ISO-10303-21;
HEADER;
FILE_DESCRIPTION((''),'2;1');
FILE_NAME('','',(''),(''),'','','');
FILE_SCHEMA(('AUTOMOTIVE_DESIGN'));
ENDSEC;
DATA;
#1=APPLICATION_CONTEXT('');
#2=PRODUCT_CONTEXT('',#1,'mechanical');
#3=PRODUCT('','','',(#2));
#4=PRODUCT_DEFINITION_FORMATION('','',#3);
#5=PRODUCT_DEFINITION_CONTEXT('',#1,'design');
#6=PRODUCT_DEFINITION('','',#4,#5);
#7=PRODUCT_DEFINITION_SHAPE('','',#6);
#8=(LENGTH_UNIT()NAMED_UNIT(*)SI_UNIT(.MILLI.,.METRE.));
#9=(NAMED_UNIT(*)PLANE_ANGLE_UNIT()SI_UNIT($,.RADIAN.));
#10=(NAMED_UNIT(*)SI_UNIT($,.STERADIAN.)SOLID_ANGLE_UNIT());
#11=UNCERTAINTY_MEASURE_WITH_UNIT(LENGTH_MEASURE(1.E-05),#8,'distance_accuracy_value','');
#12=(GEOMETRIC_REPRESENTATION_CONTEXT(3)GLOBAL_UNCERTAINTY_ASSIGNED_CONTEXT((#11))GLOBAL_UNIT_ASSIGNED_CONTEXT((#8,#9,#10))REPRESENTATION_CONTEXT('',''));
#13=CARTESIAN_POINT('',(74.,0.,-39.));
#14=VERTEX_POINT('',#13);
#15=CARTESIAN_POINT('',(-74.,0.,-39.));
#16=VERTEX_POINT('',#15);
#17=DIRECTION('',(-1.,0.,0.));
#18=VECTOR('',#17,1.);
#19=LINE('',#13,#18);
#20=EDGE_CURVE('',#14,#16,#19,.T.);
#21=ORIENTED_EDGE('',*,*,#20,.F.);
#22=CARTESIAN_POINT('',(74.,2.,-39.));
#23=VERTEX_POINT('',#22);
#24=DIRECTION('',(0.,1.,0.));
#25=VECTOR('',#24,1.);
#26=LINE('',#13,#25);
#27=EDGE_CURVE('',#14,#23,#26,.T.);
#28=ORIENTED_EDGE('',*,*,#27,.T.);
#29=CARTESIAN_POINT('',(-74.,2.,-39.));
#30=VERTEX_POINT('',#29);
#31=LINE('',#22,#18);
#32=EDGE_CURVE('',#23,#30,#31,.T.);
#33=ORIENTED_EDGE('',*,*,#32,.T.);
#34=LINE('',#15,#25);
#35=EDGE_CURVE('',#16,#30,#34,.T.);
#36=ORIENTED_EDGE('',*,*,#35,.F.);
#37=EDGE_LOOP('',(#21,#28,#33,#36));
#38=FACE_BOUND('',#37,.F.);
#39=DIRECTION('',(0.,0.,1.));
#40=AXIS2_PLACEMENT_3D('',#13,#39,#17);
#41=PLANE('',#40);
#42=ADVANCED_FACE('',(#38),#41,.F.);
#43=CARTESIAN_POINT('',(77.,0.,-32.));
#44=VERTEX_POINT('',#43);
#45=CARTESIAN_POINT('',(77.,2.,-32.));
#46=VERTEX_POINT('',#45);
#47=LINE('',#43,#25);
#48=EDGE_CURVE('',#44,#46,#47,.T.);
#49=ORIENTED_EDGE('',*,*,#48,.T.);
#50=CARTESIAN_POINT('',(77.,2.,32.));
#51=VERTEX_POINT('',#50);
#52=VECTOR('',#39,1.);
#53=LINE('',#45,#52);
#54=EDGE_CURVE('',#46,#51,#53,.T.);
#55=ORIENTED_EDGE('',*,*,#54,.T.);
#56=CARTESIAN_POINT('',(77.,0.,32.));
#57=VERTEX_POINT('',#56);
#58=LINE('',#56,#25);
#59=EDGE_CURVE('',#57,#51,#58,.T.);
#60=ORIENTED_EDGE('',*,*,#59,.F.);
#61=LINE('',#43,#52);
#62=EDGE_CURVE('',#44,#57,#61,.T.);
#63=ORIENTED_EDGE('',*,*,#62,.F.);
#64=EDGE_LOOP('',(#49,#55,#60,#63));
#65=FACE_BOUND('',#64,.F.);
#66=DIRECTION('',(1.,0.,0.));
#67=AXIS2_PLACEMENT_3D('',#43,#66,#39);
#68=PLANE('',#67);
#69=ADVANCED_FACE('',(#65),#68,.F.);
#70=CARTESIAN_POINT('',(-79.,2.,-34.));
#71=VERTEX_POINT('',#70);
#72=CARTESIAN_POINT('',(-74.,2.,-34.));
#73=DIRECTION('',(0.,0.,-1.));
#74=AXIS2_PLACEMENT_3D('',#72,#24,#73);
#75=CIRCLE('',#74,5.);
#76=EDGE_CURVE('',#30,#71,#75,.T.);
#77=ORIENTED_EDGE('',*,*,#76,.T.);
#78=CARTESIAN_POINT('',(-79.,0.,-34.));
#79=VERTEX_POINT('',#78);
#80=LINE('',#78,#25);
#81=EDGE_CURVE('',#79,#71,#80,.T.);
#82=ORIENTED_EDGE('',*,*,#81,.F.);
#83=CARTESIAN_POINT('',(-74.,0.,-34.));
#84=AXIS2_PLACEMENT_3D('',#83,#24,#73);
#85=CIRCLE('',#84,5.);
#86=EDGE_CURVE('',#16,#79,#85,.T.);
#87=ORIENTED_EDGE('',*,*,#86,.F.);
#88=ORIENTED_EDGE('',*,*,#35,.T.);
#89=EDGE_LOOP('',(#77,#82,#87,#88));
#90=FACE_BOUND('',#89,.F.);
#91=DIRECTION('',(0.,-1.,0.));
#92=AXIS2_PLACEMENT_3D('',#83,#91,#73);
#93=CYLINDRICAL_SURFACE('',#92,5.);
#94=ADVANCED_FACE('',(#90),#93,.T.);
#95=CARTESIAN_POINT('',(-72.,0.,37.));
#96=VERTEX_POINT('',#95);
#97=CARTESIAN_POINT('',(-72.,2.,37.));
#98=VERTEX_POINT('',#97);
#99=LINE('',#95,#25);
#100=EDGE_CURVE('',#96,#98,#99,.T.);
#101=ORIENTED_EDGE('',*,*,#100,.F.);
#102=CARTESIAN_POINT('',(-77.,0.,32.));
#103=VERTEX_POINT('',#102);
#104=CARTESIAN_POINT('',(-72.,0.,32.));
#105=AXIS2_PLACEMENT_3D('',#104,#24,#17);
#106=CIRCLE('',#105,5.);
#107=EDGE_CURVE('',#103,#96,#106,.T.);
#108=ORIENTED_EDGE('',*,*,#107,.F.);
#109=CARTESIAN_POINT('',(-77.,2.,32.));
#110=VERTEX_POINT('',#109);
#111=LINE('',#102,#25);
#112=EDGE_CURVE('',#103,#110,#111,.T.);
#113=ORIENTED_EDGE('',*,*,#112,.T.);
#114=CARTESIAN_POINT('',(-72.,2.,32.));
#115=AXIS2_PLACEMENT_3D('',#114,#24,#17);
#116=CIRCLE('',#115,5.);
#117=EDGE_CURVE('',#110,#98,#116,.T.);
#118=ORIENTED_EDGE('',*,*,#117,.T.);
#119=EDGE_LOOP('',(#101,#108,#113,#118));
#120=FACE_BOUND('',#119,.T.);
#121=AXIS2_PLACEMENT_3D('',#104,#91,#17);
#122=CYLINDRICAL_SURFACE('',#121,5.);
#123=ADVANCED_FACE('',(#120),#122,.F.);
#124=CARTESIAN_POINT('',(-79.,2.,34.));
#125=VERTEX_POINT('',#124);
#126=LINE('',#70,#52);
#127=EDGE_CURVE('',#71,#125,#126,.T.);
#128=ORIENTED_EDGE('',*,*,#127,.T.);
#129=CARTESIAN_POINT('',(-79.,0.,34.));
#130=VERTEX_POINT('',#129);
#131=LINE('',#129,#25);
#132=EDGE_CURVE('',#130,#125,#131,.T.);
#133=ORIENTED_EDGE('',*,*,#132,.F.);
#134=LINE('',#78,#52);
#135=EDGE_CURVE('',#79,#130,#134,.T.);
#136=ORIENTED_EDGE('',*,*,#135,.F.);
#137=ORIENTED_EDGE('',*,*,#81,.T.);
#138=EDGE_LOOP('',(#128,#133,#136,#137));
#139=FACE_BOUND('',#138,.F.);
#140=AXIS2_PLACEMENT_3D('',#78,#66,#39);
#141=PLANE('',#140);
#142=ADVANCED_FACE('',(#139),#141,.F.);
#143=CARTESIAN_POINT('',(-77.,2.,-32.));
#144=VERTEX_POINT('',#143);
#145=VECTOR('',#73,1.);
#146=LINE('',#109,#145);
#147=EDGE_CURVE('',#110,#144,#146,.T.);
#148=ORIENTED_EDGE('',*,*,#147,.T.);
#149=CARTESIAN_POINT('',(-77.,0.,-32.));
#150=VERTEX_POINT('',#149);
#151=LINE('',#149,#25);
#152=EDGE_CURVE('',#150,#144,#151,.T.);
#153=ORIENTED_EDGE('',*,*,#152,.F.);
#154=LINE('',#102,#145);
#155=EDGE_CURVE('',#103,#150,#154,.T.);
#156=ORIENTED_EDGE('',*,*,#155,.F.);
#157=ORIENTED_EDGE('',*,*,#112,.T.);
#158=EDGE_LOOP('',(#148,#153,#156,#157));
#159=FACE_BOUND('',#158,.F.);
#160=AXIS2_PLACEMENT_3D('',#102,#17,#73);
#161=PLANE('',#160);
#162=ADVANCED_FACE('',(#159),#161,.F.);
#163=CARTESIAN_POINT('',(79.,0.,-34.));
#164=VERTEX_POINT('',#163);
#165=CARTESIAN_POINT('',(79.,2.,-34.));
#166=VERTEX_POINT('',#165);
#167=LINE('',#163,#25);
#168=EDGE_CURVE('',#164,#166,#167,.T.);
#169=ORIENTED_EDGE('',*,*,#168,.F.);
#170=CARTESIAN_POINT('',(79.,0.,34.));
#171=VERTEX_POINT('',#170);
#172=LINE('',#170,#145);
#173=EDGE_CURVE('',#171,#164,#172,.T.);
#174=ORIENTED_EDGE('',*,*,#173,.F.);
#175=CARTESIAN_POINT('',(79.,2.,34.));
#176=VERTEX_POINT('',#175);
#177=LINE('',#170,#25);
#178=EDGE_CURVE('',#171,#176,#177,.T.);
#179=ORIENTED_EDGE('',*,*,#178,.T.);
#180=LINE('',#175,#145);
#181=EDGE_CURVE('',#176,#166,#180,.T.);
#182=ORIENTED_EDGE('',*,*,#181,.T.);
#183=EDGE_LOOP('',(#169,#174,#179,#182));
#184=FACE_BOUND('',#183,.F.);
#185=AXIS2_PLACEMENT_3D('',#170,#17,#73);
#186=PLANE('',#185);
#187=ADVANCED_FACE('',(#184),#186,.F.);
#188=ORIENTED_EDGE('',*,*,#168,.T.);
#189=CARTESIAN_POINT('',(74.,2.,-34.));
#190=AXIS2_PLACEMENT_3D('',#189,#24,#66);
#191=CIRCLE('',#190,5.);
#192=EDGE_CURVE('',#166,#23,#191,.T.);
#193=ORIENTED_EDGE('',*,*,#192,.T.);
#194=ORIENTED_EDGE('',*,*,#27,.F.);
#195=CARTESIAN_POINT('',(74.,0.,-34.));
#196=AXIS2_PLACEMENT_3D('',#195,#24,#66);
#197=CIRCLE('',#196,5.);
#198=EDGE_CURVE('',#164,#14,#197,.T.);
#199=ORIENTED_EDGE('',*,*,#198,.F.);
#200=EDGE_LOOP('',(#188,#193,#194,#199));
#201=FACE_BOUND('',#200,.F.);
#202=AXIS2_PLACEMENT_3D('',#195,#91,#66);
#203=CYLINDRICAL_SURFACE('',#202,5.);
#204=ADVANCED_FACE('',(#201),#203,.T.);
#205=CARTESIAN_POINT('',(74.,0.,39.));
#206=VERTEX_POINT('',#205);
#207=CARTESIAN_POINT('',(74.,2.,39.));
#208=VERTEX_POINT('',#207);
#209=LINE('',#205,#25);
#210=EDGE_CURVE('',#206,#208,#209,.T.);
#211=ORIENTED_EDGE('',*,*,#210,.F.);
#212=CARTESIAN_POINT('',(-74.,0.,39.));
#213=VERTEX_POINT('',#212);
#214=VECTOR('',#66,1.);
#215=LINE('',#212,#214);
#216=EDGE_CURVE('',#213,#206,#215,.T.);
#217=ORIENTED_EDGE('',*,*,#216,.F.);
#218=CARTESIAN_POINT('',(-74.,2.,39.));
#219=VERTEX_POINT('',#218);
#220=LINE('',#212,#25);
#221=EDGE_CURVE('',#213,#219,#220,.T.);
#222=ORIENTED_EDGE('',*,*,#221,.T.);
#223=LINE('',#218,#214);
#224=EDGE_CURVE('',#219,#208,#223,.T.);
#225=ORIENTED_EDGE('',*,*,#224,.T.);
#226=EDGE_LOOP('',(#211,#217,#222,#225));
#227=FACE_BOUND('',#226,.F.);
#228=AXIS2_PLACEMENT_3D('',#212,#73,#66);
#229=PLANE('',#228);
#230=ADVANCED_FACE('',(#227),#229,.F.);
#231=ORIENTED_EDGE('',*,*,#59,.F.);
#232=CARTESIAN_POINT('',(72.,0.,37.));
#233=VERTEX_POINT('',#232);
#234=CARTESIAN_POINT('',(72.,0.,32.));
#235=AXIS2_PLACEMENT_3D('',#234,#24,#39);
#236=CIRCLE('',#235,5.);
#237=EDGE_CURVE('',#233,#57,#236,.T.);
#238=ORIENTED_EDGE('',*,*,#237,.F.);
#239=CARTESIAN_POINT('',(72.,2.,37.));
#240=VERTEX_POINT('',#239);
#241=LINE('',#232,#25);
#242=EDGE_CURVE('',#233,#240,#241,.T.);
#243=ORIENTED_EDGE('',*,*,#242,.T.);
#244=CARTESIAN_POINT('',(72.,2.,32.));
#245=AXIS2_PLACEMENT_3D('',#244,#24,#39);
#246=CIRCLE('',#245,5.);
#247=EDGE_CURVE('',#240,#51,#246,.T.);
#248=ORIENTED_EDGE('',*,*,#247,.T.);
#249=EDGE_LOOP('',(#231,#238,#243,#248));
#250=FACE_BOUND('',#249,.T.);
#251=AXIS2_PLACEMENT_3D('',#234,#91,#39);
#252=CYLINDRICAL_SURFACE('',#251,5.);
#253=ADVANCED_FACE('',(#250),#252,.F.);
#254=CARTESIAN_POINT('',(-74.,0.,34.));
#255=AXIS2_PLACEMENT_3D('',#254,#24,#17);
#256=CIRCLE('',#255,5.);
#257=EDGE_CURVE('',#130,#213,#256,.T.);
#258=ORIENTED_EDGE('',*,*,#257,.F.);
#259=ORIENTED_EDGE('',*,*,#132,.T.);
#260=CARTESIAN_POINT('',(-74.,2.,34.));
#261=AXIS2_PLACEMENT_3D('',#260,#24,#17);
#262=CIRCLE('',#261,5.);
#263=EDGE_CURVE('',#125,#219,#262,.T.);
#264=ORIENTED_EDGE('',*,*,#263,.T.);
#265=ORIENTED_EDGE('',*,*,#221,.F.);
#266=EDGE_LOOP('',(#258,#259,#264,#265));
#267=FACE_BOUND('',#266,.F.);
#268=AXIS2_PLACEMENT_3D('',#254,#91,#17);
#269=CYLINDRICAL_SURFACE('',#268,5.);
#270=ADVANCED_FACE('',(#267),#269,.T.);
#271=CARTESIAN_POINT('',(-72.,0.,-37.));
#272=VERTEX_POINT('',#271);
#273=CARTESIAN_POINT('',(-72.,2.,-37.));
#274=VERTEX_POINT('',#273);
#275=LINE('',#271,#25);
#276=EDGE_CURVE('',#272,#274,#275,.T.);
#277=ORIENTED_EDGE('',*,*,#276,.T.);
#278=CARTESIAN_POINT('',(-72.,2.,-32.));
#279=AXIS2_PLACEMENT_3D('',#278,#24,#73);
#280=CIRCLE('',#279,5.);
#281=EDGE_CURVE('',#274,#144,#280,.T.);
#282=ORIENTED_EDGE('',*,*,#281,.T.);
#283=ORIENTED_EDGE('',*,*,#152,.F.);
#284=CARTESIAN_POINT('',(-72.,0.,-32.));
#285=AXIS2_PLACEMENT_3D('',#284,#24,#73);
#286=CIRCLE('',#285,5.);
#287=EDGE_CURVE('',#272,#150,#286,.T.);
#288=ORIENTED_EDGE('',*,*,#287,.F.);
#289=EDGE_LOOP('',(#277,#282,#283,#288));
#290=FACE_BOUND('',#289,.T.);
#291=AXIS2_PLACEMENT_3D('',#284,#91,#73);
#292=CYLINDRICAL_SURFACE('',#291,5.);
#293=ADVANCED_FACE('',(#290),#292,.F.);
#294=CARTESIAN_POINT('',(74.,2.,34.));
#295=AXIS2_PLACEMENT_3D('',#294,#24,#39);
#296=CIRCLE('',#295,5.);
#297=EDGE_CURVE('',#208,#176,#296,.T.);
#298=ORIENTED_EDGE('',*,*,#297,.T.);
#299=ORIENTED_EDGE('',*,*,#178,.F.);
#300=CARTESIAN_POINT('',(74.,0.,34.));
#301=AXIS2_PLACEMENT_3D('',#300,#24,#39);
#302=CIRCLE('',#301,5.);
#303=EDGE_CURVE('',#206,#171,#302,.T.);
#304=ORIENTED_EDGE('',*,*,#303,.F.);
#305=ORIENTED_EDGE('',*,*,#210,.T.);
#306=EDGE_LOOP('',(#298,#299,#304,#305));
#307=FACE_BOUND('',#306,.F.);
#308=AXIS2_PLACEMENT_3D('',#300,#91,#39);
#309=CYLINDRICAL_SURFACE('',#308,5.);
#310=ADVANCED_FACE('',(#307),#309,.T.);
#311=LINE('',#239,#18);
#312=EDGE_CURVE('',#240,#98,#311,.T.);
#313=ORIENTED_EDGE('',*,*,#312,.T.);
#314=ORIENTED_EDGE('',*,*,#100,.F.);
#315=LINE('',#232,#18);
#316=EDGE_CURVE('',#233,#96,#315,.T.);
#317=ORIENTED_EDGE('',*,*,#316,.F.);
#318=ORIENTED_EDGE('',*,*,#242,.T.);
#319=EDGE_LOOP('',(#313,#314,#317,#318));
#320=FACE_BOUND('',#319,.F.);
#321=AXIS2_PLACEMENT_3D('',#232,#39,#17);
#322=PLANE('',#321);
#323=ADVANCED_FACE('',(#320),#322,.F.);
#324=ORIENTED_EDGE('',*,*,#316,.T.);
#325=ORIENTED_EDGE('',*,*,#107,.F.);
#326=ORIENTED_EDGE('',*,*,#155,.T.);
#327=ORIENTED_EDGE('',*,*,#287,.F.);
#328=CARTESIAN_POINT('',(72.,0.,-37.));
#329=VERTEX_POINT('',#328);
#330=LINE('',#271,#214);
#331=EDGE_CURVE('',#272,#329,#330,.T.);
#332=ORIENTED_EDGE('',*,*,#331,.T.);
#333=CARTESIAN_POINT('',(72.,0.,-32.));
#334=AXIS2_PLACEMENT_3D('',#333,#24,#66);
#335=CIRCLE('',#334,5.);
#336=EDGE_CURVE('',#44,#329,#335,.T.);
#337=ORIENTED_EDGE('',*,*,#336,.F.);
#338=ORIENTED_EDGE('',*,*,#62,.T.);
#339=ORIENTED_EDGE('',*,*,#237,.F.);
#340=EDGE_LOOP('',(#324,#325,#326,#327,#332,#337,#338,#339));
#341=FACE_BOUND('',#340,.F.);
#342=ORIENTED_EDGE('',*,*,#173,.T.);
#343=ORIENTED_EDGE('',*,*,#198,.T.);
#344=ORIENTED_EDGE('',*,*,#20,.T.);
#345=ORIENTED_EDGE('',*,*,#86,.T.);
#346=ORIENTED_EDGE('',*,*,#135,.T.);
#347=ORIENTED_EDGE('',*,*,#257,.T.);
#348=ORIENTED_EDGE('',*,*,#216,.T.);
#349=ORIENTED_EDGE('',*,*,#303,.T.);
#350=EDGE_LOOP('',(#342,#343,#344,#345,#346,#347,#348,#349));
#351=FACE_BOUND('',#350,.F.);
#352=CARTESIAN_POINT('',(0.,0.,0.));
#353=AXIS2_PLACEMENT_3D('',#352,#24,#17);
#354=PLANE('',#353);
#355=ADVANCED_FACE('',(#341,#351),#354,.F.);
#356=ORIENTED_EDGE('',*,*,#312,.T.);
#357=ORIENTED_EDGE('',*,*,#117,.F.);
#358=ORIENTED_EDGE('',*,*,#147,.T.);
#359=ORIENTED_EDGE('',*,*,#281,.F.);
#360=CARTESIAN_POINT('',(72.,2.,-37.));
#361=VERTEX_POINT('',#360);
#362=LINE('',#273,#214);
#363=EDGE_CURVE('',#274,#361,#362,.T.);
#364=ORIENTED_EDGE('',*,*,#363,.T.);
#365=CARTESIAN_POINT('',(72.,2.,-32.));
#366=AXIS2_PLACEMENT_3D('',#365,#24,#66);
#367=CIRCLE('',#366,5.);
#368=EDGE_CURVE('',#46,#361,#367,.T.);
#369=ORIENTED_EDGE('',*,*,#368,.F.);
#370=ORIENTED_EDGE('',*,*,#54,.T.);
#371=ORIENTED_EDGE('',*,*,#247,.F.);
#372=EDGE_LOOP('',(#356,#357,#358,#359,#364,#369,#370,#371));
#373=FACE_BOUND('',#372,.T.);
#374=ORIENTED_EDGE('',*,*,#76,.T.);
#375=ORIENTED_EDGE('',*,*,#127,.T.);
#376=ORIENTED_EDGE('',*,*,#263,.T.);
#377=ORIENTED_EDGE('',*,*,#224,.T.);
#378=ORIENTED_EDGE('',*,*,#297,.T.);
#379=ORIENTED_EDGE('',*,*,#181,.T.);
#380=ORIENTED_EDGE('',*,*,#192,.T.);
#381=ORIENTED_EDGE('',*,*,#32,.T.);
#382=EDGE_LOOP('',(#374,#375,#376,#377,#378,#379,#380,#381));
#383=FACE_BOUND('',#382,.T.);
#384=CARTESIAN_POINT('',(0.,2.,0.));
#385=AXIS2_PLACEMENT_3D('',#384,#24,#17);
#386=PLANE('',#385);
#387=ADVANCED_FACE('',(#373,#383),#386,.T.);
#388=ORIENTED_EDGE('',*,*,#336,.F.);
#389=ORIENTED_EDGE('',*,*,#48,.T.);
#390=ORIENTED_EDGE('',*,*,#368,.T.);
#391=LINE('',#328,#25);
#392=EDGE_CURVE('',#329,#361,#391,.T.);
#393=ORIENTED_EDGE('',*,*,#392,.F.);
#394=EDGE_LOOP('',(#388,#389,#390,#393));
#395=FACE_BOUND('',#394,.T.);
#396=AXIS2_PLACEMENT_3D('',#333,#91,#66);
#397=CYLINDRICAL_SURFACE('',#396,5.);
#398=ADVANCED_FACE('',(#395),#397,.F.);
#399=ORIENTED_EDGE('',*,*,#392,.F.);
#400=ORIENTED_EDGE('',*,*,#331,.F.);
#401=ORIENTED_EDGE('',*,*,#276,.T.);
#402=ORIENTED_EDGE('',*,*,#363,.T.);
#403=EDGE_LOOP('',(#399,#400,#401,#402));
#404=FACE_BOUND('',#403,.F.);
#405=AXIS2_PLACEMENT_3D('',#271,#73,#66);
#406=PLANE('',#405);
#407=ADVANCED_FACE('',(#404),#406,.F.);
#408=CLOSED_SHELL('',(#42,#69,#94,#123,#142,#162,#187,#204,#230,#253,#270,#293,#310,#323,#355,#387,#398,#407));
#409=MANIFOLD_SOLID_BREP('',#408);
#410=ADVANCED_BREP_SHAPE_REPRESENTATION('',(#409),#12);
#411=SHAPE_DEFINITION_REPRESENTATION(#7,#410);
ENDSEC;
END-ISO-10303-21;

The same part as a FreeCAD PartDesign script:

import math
import FreeCAD as App
import Part
import Sketcher

V = App.Vector

doc = App.newDocument("Part")
body = doc.addObject("PartDesign::Body", "Body")

# Sketch on XZ plane
sketch1 = doc.addObject("Sketcher::SketchObject", "Sketch")
body.addObject(sketch1)
sketch1.AttachmentSupport = (doc.XZ_Plane, [""])
sketch1.MapMode = "FlatFace"
sketch1.addGeometry([
    Part.ArcOfCircle(Part.Circle(V(-74, 34, 0), V(0, 0, 1), 5), math.radians(90), math.radians(180)),  # 0
    Part.LineSegment(V(-74, 39, 0), V(74, 39, 0)),  # 1
    Part.ArcOfCircle(Part.Circle(V(74, 34, 0), V(0, 0, 1), 5), math.radians(0), math.radians(90)),  # 2
    Part.LineSegment(V(79, 34, 0), V(79, -34, 0)),  # 3
    Part.ArcOfCircle(Part.Circle(V(74, -34, 0), V(0, 0, 1), 5), math.radians(-90), math.radians(0)),  # 4
    Part.LineSegment(V(74, -39, 0), V(-74, -39, 0)),  # 5
    Part.ArcOfCircle(Part.Circle(V(-74, -34, 0), V(0, 0, 1), 5), math.radians(180), math.radians(270)),  # 6
    Part.LineSegment(V(-79, -34, 0), V(-79, 34, 0)),  # 7
    Part.ArcOfCircle(Part.Circle(V(72, 32, 0), V(0, 0, 1), 5), math.radians(0), math.radians(90)),  # 8
    Part.LineSegment(V(72, 37, 0), V(-72, 37, 0)),  # 9
    Part.ArcOfCircle(Part.Circle(V(-72, 32, 0), V(0, 0, 1), 5), math.radians(90), math.radians(180)),  # 10
    Part.LineSegment(V(-77, 32, 0), V(-77, -32, 0)),  # 11
    Part.ArcOfCircle(Part.Circle(V(-72, -32, 0), V(0, 0, 1), 5), math.radians(180), math.radians(270)),  # 12
    Part.LineSegment(V(-72, -37, 0), V(72, -37, 0)),  # 13
    Part.ArcOfCircle(Part.Circle(V(72, -32, 0), V(0, 0, 1), 5), math.radians(-90), math.radians(0)),  # 14
    Part.LineSegment(V(77, -32, 0), V(77, 32, 0)),  # 15
], False)
sketch1.addConstraint([
    Sketcher.Constraint("Tangent", 0, 1, 1, 1),
    Sketcher.Constraint("Tangent", 1, 2, 2, 2),
    Sketcher.Constraint("Tangent", 2, 1, 3, 1),
    Sketcher.Constraint("Tangent", 3, 2, 4, 2),
    Sketcher.Constraint("Tangent", 4, 1, 5, 1),
    Sketcher.Constraint("Tangent", 5, 2, 6, 2),
    Sketcher.Constraint("Tangent", 6, 1, 7, 1),
    Sketcher.Constraint("Tangent", 7, 2, 0, 2),
    Sketcher.Constraint("Tangent", 8, 2, 9, 1),
    Sketcher.Constraint("Tangent", 9, 2, 10, 1),
    Sketcher.Constraint("Tangent", 10, 2, 11, 1),
    Sketcher.Constraint("Tangent", 11, 2, 12, 1),
    Sketcher.Constraint("Tangent", 12, 2, 13, 1),
    Sketcher.Constraint("Tangent", 13, 2, 14, 1),
    Sketcher.Constraint("Tangent", 14, 2, 15, 1),
    Sketcher.Constraint("Tangent", 15, 2, 8, 1),
    Sketcher.Constraint("Horizontal", 1),
    Sketcher.Constraint("Vertical", 3),
    Sketcher.Constraint("Horizontal", 5),
    Sketcher.Constraint("Vertical", 7),
    Sketcher.Constraint("Horizontal", 9),
    Sketcher.Constraint("Vertical", 11),
    Sketcher.Constraint("Horizontal", 13),
    Sketcher.Constraint("Vertical", 15),
    Sketcher.Constraint("Equal", 0, 2),
    Sketcher.Constraint("Equal", 2, 4),
    Sketcher.Constraint("Equal", 4, 6),
    Sketcher.Constraint("Equal", 6, 8),
    Sketcher.Constraint("Equal", 8, 10),
    Sketcher.Constraint("Equal", 10, 12),
    Sketcher.Constraint("Equal", 12, 14),
    Sketcher.Constraint("Symmetric", 0, 3, 4, 3, -1, 1),
    Sketcher.Constraint("Symmetric", 8, 3, 12, 3, -1, 1),
    Sketcher.Constraint("Radius", 0, 5.0),
    Sketcher.Constraint("DistanceX", 8, 3, 2, 3, 2.0),
    Sketcher.Constraint("DistanceY", 8, 3, 2, 3, 2.0),
    Sketcher.Constraint("DistanceX", 1, 1, 1, 2, 148.0),
    Sketcher.Constraint("DistanceY", 3, 2, 3, 1, 68.0),
])
pad1 = doc.addObject("PartDesign::Pad", "Pad")
body.addObject(pad1)
pad1.Profile = sketch1
pad1.Length = 2
pad1.Reversed = True

doc.recompute()
